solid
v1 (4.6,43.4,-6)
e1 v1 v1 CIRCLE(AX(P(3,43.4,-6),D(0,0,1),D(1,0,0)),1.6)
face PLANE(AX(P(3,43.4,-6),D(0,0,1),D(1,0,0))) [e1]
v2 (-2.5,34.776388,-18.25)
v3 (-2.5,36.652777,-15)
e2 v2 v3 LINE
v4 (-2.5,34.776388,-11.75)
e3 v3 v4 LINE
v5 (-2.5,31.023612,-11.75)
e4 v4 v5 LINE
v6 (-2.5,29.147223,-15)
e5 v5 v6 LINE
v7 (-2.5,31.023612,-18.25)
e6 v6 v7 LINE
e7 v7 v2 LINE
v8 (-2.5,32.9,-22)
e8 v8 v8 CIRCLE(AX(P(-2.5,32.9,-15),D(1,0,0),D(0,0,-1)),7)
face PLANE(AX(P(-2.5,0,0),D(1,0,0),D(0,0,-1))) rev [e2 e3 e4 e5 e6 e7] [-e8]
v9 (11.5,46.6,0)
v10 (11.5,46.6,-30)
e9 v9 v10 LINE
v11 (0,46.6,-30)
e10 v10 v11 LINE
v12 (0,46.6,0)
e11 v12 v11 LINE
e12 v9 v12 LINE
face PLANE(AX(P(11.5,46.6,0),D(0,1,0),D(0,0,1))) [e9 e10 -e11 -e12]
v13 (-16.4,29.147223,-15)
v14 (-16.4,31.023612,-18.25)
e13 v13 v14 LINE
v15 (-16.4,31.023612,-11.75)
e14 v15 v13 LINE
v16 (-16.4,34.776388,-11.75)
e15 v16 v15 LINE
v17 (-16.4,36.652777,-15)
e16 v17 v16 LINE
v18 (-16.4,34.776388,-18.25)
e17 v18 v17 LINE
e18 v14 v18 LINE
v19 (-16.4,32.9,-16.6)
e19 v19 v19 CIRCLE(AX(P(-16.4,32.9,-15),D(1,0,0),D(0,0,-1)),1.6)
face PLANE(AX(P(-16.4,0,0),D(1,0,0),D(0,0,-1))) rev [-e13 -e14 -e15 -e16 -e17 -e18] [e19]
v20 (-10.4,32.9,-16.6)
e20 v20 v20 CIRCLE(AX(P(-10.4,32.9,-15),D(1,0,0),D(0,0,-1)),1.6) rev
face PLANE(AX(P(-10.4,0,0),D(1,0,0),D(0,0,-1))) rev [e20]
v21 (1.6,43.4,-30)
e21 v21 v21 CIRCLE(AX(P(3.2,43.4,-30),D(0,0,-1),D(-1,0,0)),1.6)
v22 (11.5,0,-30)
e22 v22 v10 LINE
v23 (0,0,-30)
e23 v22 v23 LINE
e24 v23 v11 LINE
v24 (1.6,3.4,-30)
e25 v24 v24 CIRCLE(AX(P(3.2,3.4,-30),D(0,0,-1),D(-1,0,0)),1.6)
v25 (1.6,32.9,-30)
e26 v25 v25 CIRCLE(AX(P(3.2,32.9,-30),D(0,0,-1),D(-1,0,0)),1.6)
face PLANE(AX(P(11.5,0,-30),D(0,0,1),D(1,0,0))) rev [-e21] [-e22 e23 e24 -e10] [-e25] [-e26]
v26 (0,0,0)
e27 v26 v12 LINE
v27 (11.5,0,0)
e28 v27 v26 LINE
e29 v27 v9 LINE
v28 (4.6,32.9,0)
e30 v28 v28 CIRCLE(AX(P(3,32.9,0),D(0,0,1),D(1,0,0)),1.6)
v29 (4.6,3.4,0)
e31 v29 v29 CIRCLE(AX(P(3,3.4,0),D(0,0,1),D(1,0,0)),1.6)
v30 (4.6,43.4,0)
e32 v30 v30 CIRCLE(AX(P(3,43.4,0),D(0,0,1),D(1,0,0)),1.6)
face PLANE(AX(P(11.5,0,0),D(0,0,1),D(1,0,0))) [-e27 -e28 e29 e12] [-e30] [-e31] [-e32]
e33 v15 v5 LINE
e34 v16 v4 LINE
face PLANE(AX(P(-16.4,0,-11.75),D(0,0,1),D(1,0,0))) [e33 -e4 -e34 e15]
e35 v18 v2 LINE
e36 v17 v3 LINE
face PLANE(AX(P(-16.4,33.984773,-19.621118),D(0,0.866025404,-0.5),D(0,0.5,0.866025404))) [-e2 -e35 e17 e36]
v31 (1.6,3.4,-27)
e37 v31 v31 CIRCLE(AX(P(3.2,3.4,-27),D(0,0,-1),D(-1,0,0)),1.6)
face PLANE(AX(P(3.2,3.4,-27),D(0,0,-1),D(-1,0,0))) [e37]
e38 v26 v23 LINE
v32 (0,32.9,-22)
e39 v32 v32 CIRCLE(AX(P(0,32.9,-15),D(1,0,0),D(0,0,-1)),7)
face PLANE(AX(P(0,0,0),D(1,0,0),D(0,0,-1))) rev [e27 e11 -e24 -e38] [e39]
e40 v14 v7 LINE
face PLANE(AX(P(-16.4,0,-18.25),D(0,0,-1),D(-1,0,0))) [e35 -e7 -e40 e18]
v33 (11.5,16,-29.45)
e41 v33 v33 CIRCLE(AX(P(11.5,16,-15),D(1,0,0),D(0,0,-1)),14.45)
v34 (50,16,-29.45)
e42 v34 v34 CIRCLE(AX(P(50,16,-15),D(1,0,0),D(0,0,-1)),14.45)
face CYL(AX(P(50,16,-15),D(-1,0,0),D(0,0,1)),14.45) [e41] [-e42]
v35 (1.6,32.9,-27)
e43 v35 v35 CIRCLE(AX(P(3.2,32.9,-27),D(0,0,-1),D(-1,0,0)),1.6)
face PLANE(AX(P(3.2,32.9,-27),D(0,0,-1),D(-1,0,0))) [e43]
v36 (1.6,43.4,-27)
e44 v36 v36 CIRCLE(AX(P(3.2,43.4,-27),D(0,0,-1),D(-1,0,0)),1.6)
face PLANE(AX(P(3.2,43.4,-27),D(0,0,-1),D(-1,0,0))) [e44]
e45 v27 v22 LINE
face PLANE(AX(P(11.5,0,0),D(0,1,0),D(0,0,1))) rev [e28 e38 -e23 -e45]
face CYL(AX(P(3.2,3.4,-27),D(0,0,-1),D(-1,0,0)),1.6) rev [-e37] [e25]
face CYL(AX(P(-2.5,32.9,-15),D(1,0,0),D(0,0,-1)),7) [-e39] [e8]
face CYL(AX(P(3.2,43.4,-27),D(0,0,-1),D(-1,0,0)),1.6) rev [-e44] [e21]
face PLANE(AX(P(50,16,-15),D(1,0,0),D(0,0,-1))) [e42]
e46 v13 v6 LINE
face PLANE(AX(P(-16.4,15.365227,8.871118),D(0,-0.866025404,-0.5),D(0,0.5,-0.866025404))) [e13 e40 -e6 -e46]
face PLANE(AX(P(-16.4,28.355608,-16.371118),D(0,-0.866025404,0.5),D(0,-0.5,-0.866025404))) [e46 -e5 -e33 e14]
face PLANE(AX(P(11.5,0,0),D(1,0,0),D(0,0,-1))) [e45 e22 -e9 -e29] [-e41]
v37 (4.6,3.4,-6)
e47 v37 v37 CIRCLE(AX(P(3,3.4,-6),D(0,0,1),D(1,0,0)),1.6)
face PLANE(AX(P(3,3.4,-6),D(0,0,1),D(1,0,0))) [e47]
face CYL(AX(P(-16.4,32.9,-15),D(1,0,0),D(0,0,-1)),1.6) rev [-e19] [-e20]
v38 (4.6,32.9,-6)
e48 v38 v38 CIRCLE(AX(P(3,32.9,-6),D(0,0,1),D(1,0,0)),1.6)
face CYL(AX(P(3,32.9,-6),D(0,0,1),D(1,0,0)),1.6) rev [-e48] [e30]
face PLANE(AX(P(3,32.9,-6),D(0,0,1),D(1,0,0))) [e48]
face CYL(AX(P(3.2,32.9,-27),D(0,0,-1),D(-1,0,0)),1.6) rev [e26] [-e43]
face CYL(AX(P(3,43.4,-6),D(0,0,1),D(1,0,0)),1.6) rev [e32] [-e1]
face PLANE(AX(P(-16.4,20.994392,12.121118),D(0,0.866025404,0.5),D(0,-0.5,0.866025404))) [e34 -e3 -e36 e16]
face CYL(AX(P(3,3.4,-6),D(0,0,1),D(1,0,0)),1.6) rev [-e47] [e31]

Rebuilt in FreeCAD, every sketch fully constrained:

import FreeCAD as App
import Part
import Sketcher
Q = App.Units.Quantity

doc = App.newDocument("Part")
body = doc.addObject("PartDesign::Body", "Body")

sketch1 = doc.addObject("Sketcher::SketchObject", "Sketch")
body.addObject(sketch1)
sketch1.AttachmentSupport = (doc.YZ_Plane, [""])
sketch1.MapMode = "FlatFace"
sketch1.addGeometry(Part.LineSegment(App.Vector(46.6, 0, 0), App.Vector(0, 0, 0)), False)
sketch1.addGeometry(Part.LineSegment(App.Vector(0, 0, 0), App.Vector(0, -30, 0)), False)
sketch1.addGeometry(Part.LineSegment(App.Vector(0, -30, 0), App.Vector(46.6, -30, 0)), False)
sketch1.addGeometry(Part.LineSegment(App.Vector(46.6, -30, 0), App.Vector(46.6, 0, 0)), False)
sketch1.addConstraint(Sketcher.Constraint("Coincident", 0, 2, 1, 1))
sketch1.addConstraint(Sketcher.Constraint("Coincident", 1, 2, 2, 1))
sketch1.addConstraint(Sketcher.Constraint("Coincident", 2, 2, 3, 1))
sketch1.addConstraint(Sketcher.Constraint("Coincident", 3, 2, 0, 1))
sketch1.addConstraint(Sketcher.Constraint("Horizontal", 0))
sketch1.addConstraint(Sketcher.Constraint("Vertical", 1))
sketch1.addConstraint(Sketcher.Constraint("Horizontal", 2))
sketch1.addConstraint(Sketcher.Constraint("Vertical", 3))
sketch1.addConstraint(Sketcher.Constraint("Coincident", 0, 2, -1, 1))
sketch1.addConstraint(Sketcher.Constraint("DistanceY", 1, 2, 1, 1, 30.0))
sketch1.addConstraint(Sketcher.Constraint("DistanceX", 0, 2, 0, 1, 46.6))
pad1 = doc.addObject("PartDesign::Pad", "Pad")
body.addObject(pad1)
pad1.Profile = sketch1
pad1.Length = 11.5

sketch2 = doc.addObject("Sketcher::SketchObject", "Sketch001")
body.addObject(sketch2)
sketch2.AttachmentSupport = (doc.YZ_Plane, [""])
sketch2.MapMode = "FlatFace"
sketch2.addGeometry(Part.Circle(App.Vector(32.9, -15, 0), App.Vector(0, 0, 1), 7), False)
sketch2.addGeometry(Part.LineSegment(App.Vector(34.776388, -18.25, 0), App.Vector(31.023612, -18.25, 0)), False)
sketch2.addGeometry(Part.LineSegment(App.Vector(31.023612, -18.25, 0), App.Vector(29.147223, -15, 0)), False)
sketch2.addGeometry(Part.LineSegment(App.Vector(29.147223, -15, 0), App.Vector(31.023612, -11.75, 0)), False)
sketch2.addGeometry(Part.LineSegment(App.Vector(31.023612, -11.75, 0), App.Vector(34.776388, -11.75, 0)), False)
sketch2.addGeometry(Part.LineSegment(App.Vector(34.776388, -11.75, 0), App.Vector(36.652777, -15, 0)), False)
sketch2.addGeometry(Part.LineSegment(App.Vector(36.652777, -15, 0), App.Vector(34.776388, -18.25, 0)), False)
sketch2.addConstraint(Sketcher.Constraint("Coincident", 1, 2, 2, 1))
sketch2.addConstraint(Sketcher.Constraint("Coincident", 2, 2, 3, 1))
sketch2.addConstraint(Sketcher.Constraint("Coincident", 3, 2, 4, 1))
sketch2.addConstraint(Sketcher.Constraint("Coincident", 4, 2, 5, 1))
sketch2.addConstraint(Sketcher.Constraint("Coincident", 5, 2, 6, 1))
sketch2.addConstraint(Sketcher.Constraint("Coincident", 6, 2, 1, 1))
sketch2.addConstraint(Sketcher.Constraint("Horizontal", 1))
sketch2.addConstraint(Sketcher.Constraint("Horizontal", 4))
sketch2.addConstraint(Sketcher.Constraint("Parallel", 2, 5))
sketch2.addConstraint(Sketcher.Constraint("Parallel", 3, 6))
sketch2.addConstraint(Sketcher.Constraint("Horizontal", 0, 3, 2, 2))
sketch2.addConstraint(Sketcher.Constraint("Horizontal", 2, 2, 5, 2))
sketch2.addConstraint(Sketcher.Constraint("Vertical", 1, 2, 3, 2))
sketch2.addConstraint(Sketcher.Constraint("Vertical", 4, 2, 6, 2))
sketch2.addConstraint(Sketcher.Constraint("Diameter", 0, 14.0))
sketch2.addConstraint(Sketcher.Constraint("Angle", 2, Q("120 deg")))
sketch2.addConstraint(Sketcher.Constraint("DistanceY", 0, 3, -1, 1, 15.0))
sketch2.addConstraint(Sketcher.Constraint("DistanceX", -1, 1, 0, 3, 32.9))
sketch2.addConstraint(Sketcher.Constraint("DistanceY", 1, 2, 3, 2, 6.5))
sketch2.addConstraint(Sketcher.Constraint("DistanceX", 1, 2, 1, 1, 3.752777))
sketch2.addConstraint(Sketcher.Constraint("DistanceX", -1, 1, 1, 2, 31.023612))
pad2 = doc.addObject("PartDesign::Pad", "Pad001")
body.addObject(pad2)
pad2.Profile = sketch2
pad2.Length = 2.5
pad2.Reversed = True

sketch3 = doc.addObject("Sketcher::SketchObject", "Sketch002")
body.addObject(sketch3)
sketch3.AttachmentSupport = (doc.YZ_Plane, [""])
sketch3.MapMode = "FlatFace"
sketch3.addGeometry(Part.LineSegment(App.Vector(29.147223, -15, 0), App.Vector(31.023612, -18.25, 0)), False)
sketch3.addGeometry(Part.LineSegment(App.Vector(31.023612, -18.25, 0), App.Vector(34.776388, -18.25, 0)), False)
sketch3.addGeometry(Part.LineSegment(App.Vector(34.776388, -18.25, 0), App.Vector(36.652777, -15, 0)), False)
sketch3.addGeometry(Part.LineSegment(App.Vector(36.652777, -15, 0), App.Vector(34.776388, -11.75, 0)), False)
sketch3.addGeometry(Part.LineSegment(App.Vector(34.776388, -11.75, 0), App.Vector(31.023612, -11.75, 0)), False)
sketch3.addGeometry(Part.LineSegment(App.Vector(31.023612, -11.75, 0), App.Vector(29.147223, -15, 0)), False)
sketch3.addGeometry(Part.Circle(App.Vector(32.9, -15, 0), App.Vector(0, 0, 1), 1.6), False)
sketch3.addConstraint(Sketcher.Constraint("Coincident", 0, 2, 1, 1))
sketch3.addConstraint(Sketcher.Constraint("Coincident", 1, 2, 2, 1))
sketch3.addConstraint(Sketcher.Constraint("Coincident", 2, 2, 3, 1))
sketch3.addConstraint(Sketcher.Constraint("Coincident", 3, 2, 4, 1))
sketch3.addConstraint(Sketcher.Constraint("Coincident", 4, 2, 5, 1))
sketch3.addConstraint(Sketcher.Constraint("Coincident", 5, 2, 0, 1))
sketch3.addConstraint(Sketcher.Constraint("Horizontal", 1))
sketch3.addConstraint(Sketcher.Constraint("Horizontal", 4))
sketch3.addConstraint(Sketcher.Constraint("Parallel", 0, 3))
sketch3.addConstraint(Sketcher.Constraint("Parallel", 2, 5))
sketch3.addConstraint(Sketcher.Constraint("Horizontal", 6, 3, 2, 2))
sketch3.addConstraint(Sketcher.Constraint("Horizontal", 2, 2, 5, 2))
sketch3.addConstraint(Sketcher.Constraint("Vertical", 1, 2, 3, 2))
sketch3.addConstraint(Sketcher.Constraint("Vertical", 0, 2, 4, 2))
sketch3.addConstraint(Sketcher.Constraint("Diameter", 6, 3.2))
sketch3.addConstraint(Sketcher.Constraint("Angle", 0, Q("-60 deg")))
sketch3.addConstraint(Sketcher.Constraint("DistanceY", 6, 3, -1, 1, 15.0))
sketch3.addConstraint(Sketcher.Constraint("DistanceX", -1, 1, 6, 3, 32.9))
sketch3.addConstraint(Sketcher.Constraint("DistanceY", 1, 2, 3, 2, 6.5))
sketch3.addConstraint(Sketcher.Constraint("DistanceX", 1, 1, 1, 2, 3.752777))
sketch3.addConstraint(Sketcher.Constraint("DistanceX", -1, 1, 0, 2, 31.023612))
pad3 = doc.addObject("PartDesign::Pad", "Pad002")
body.addObject(pad3)
pad3.Profile = sketch3
pad3.Length = 16.4
pad3.Reversed = True

sketch4 = doc.addObject("Sketcher::SketchObject", "Sketch003")
body.addObject(sketch4)
sketch4.AttachmentSupport = (doc.YZ_Plane, [""])
sketch4.MapMode = "FlatFace"
sketch4.addGeometry(Part.Circle(App.Vector(32.9, -15, 0), App.Vector(0, 0, 1), 1.6), False)
sketch4.addConstraint(Sketcher.Constraint("Diameter", 0, 3.2))
sketch4.addConstraint(Sketcher.Constraint("DistanceY", 0, 3, -1, 1, 15.0))
sketch4.addConstraint(Sketcher.Constraint("DistanceX", -1, 1, 0, 3, 32.9))
pad4 = doc.addObject("PartDesign::Pad", "Pad003")
body.addObject(pad4)
pad4.Profile = sketch4
pad4.Length = 10.4
pad4.Reversed = True

sketch5 = doc.addObject("Sketcher::SketchObject", "Sketch004")
body.addObject(sketch5)
sketch5.AttachmentSupport = (doc.YZ_Plane, [""])
sketch5.MapMode = "FlatFace"
sketch5.AttachmentOffset = App.Placement(App.Vector(0, 0, 11.5), App.Rotation())
sketch5.addGeometry(Part.Circle(App.Vector(16, -15, 0), App.Vector(0, 0, 1), 14.45), False)
sketch5.addConstraint(Sketcher.Constraint("Diameter", 0, 28.9))
sketch5.addConstraint(Sketcher.Constraint("DistanceX", -1, 1, 0, 3, 16.0))
sketch5.addConstraint(Sketcher.Constraint("DistanceY", 0, 3, -1, 1, 15.0))
pad5 = doc.addObject("PartDesign::Pad", "Pad004")
body.addObject(pad5)
pad5.Profile = sketch5
pad5.Length = 38.5

sketch6 = doc.addObject("Sketcher::SketchObject", "Sketch005")
body.addObject(sketch6)
sketch6.AttachmentSupport = (doc.XY_Plane, [""])
sketch6.MapMode = "FlatFace"
sketch6.addGeometry(Part.Circle(App.Vector(3, 43.4, 0), App.Vector(0, 0, 1), 1.6), False)
sketch6.addGeometry(Part.Circle(App.Vector(3, 32.9, 0), App.Vector(0, 0, 1), 1.6), False)
sketch6.addGeometry(Part.Circle(App.Vector(3, 3.4, 0), App.Vector(0, 0, 1), 1.6), False)
sketch6.addConstraint(Sketcher.Constraint("Equal", 0, 1))
sketch6.addConstraint(Sketcher.Constraint("Equal", 1, 2))
sketch6.addConstraint(Sketcher.Constraint("Vertical", 0, 3, 1, 3))
sketch6.addConstraint(Sketcher.Constraint("Vertical", 1, 3, 2, 3))
sketch6.addConstraint(Sketcher.Constraint("Diameter", 0, 3.2))
sketch6.addConstraint(Sketcher.Constraint("DistanceX", -1, 1, 0, 3, 3.0))
sketch6.addConstraint(Sketcher.Constraint("DistanceY", 2, 3, 0, 3, 40.0))
sketch6.addConstraint(Sketcher.Constraint("DistanceY", -1, 1, 0, 3, 43.4))
sketch6.addConstraint(Sketcher.Constraint("DistanceY", -1, 1, 1, 3, 32.9))
pocket1 = doc.addObject("PartDesign::Pocket", "Pocket")
body.addObject(pocket1)
pocket1.Profile = sketch6
pocket1.Length = 6

sketch7 = doc.addObject("Sketcher::SketchObject", "Sketch006")
body.addObject(sketch7)
sketch7.AttachmentSupport = (doc.XY_Plane, [""])
sketch7.MapMode = "FlatFace"
sketch7.AttachmentOffset = App.Placement(App.Vector(0, 0, -30), App.Rotation())
sketch7.addGeometry(Part.Circle(App.Vector(3.2, 43.4, 0), App.Vector(0, 0, 1), 1.6), False)
sketch7.addGeometry(Part.Circle(App.Vector(3.2, 32.9, 0), App.Vector(0, 0, 1), 1.6), False)
sketch7.addGeometry(Part.Circle(App.Vector(3.2, 3.4, 0), App.Vector(0, 0, 1), 1.6), False)
sketch7.addConstraint(Sketcher.Constraint("Equal", 0, 1))
sketch7.addConstraint(Sketcher.Constraint("Equal", 1, 2))
sketch7.addConstraint(Sketcher.Constraint("Vertical", 0, 3, 1, 3))
sketch7.addConstraint(Sketcher.Constraint("Vertical", 1, 3, 2, 3))
sketch7.addConstraint(Sketcher.Constraint("Diameter", 0, 3.2))
sketch7.addConstraint(Sketcher.Constraint("DistanceY", 2, 3, 0, 3, 40.0))
sketch7.addConstraint(Sketcher.Constraint("DistanceX", -1, 1, 0, 3, 3.2))
sketch7.addConstraint(Sketcher.Constraint("DistanceY", -1, 1, 0, 3, 43.4))
sketch7.addConstraint(Sketcher.Constraint("DistanceY", -1, 1, 1, 3, 32.9))
pocket2 = doc.addObject("PartDesign::Pocket", "Pocket001")
body.addObject(pocket2)
pocket2.Profile = sketch7
pocket2.Length = 3
pocket2.Reversed = True

doc.recompute()
